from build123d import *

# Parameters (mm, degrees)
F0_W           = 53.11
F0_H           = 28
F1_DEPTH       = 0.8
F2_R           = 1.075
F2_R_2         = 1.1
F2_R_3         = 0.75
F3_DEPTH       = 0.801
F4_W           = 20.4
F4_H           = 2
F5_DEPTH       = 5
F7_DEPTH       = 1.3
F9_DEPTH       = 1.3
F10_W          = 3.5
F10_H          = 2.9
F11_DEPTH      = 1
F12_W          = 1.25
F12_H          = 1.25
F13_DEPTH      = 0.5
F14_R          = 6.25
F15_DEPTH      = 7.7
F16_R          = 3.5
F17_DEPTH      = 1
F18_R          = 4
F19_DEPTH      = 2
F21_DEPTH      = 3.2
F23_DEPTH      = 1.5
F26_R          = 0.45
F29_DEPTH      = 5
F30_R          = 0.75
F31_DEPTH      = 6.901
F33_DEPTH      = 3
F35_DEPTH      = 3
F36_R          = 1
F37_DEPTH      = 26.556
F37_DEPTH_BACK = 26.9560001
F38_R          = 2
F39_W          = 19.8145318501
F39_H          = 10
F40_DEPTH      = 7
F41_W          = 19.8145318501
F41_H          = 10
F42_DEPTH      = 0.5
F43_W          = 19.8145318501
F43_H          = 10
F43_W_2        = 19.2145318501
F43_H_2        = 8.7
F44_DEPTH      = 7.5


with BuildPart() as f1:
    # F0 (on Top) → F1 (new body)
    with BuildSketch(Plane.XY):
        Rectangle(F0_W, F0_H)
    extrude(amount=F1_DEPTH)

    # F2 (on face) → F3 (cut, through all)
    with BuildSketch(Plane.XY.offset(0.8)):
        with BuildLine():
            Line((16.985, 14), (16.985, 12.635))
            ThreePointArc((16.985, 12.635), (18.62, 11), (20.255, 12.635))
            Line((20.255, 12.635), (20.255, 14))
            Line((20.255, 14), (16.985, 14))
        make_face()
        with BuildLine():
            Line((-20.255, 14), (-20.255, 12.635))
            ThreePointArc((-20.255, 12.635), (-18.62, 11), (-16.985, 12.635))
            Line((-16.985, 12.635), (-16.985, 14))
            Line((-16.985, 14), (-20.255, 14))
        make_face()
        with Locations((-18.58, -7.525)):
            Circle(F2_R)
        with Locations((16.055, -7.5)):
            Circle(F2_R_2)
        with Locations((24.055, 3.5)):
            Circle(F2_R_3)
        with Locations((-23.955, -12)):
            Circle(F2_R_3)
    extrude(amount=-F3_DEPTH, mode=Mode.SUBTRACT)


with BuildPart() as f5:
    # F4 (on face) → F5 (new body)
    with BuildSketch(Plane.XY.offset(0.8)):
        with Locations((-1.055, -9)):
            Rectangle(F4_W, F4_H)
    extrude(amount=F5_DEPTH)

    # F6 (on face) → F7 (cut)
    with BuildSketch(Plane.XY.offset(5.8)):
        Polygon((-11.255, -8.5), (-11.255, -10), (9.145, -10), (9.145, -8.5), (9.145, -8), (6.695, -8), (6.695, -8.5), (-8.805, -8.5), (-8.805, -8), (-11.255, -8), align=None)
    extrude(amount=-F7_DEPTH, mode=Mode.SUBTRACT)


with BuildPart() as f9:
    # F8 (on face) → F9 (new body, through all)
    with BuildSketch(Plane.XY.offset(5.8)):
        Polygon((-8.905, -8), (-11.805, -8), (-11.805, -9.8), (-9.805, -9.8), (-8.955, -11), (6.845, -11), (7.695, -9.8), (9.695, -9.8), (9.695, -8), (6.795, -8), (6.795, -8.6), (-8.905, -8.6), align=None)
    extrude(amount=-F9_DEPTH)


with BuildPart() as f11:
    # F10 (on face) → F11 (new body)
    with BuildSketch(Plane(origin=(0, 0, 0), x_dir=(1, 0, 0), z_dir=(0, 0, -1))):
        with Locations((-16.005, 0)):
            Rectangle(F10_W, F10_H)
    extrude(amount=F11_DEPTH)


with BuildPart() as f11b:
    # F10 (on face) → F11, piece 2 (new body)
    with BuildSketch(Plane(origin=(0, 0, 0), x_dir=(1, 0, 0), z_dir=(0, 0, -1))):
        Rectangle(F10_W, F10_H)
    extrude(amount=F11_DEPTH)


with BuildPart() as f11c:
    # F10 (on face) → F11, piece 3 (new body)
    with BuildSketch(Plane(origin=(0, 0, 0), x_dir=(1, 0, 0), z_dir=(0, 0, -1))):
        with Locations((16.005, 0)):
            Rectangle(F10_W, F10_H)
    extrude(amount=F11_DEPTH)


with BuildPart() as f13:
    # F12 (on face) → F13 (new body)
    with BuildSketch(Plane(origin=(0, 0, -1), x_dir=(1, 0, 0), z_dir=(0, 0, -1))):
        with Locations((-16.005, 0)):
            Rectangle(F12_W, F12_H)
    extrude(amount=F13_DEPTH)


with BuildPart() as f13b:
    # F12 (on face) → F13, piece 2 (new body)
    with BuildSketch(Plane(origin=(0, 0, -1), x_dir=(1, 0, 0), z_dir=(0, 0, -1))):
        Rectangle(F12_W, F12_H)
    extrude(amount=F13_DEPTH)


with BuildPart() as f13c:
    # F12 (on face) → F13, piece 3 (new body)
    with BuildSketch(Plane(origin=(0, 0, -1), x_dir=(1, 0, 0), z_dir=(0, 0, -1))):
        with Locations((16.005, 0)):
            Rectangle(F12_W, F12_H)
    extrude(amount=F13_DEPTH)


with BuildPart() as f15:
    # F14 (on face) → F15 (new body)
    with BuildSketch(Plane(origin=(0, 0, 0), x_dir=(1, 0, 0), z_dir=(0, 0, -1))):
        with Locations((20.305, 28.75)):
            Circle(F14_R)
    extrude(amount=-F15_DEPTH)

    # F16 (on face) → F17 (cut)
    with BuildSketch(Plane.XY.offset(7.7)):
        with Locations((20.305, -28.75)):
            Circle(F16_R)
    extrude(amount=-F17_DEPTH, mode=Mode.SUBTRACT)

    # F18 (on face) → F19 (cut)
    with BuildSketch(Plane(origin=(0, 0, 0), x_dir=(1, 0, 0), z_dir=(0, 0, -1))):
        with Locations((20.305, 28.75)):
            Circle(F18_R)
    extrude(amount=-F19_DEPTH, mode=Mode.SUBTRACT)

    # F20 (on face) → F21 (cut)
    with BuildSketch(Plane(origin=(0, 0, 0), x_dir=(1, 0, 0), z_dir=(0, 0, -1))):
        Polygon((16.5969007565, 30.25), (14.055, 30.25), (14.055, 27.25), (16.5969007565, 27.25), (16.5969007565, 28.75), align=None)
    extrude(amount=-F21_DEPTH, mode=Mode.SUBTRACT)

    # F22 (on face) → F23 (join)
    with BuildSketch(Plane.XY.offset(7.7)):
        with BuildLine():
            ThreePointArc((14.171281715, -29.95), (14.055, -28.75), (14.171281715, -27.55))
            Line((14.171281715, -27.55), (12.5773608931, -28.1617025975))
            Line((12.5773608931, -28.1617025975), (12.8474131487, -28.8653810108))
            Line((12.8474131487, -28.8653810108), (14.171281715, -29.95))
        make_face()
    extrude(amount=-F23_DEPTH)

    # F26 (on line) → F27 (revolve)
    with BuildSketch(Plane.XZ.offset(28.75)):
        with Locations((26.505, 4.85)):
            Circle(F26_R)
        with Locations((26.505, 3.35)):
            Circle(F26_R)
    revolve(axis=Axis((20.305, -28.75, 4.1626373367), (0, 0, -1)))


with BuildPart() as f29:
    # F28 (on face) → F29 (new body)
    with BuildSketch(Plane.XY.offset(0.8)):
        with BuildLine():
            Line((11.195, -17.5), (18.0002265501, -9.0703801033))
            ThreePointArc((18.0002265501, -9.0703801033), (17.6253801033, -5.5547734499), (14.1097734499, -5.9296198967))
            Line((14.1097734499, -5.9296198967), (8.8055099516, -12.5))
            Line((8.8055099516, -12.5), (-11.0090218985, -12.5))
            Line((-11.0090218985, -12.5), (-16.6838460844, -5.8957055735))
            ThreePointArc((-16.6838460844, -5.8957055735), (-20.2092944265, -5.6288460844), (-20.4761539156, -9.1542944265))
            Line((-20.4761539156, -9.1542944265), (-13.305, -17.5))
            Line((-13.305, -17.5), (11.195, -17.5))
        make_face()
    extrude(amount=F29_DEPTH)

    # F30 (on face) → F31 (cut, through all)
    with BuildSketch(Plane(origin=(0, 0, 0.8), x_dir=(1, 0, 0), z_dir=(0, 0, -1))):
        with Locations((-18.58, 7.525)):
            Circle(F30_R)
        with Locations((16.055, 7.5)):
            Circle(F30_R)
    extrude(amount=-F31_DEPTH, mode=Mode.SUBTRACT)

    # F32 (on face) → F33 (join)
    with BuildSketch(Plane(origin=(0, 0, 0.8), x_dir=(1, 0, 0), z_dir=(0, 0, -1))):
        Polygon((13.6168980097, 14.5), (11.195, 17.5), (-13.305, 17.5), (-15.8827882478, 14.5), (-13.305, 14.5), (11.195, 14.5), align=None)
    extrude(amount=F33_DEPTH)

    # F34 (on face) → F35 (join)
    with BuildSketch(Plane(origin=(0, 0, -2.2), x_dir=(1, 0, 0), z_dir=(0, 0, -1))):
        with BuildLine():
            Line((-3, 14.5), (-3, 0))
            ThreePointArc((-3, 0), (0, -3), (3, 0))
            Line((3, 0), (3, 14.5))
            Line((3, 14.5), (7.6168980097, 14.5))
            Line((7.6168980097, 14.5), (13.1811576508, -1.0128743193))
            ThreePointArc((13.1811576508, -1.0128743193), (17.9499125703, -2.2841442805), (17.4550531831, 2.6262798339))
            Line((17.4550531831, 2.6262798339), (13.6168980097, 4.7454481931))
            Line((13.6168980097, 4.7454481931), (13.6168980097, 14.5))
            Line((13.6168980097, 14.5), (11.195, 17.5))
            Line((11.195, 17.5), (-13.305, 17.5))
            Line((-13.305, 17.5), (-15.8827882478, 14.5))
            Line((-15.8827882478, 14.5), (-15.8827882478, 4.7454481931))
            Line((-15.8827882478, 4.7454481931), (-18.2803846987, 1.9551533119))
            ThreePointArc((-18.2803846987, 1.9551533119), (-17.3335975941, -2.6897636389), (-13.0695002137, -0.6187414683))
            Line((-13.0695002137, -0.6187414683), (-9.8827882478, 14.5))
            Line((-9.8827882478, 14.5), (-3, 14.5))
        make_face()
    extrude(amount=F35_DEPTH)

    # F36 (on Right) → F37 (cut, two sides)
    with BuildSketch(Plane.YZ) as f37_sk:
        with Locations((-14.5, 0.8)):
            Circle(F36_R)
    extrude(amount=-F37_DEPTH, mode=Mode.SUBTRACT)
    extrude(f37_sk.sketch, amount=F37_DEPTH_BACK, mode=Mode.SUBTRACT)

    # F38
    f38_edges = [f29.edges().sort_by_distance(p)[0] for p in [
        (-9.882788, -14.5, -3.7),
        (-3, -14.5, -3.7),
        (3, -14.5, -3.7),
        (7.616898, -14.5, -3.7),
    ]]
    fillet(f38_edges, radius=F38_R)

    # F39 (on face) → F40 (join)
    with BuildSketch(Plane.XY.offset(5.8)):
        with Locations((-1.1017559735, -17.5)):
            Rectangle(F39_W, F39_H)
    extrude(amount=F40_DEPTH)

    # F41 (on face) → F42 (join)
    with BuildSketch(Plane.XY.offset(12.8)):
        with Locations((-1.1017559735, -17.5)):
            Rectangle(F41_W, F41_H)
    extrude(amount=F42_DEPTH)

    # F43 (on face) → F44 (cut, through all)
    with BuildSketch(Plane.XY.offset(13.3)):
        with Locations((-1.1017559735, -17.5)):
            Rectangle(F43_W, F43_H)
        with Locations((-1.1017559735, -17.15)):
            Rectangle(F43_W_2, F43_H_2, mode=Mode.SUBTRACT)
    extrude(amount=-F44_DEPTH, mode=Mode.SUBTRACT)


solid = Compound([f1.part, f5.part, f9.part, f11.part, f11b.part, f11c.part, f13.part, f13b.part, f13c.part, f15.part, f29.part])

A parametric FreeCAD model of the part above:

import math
import FreeCAD as App
import Part
import Sketcher
from FreeCAD import Vector
Q = App.Units.Quantity


def edges_at(feature, points):
    """Names of the edges that pass closest to the given points."""
    edges = feature.Shape.Edges
    near = lambda p: min(range(len(edges)), key=lambda i: edges[i].distToShape(Part.Vertex(*p))[0])
    return sorted({f"Edge{near(p) + 1}" for p in points})


def add_polygon(sketch, points):
    """Adds a closed chain of lines whose ends are joined by coincident constraints."""
    first, n = sketch.GeometryCount, len(points)
    for a, b in zip(points, points[1:] + points[:1]):
        sketch.addGeometry(Part.LineSegment(App.Vector(*a, 0), App.Vector(*b, 0)), False)
    for i in range(n):
        sketch.addConstraint(Sketcher.Constraint("Coincident", first + i, 2, first + (i + 1) % n, 1))

doc = App.newDocument("Part")
params = doc.addObject("Spreadsheet::Sheet", "Params")
for row, (alias, value) in enumerate([
    ("sketch1_height", "28 mm"),
    ("sketch1_width", "53.11 mm"),
    ("pad1_length", "0.8 mm"),
    ("sketch2_diameter", "2.2 mm"),
    ("sketch2_diameter2", "1.5 mm"),
    ("sketch2_diameter3", "2.15 mm"),
    ("sketch3_height", "2 mm"),
    ("sketch3_width", "20.4 mm"),
    ("pad2_length", "5 mm"),
    ("sketch4_height", "2 mm"),
    ("sketch4_width", "20.4 mm"),
    ("sketch4_width2", "15.5 mm"),
    ("sketch4_height2", "0.5 mm"),
    ("pocket2_length", "1.3 mm"),
    ("sketch5_width", "2 mm"),
    ("sketch5_width2", "2.9 mm"),
    ("sketch5_width3", "15.8 mm"),
    ("sketch5_width4", "15.7 mm"),
    ("sketch5_height", "1.8 mm"),
    ("pad3_length", "1.3 mm"),
    ("sketch6_width", "3.5 mm"),
    ("sketch6_height", "2.9 mm"),
    ("pad4_length", "1 mm"),
    ("sketch7_width", "3.5 mm"),
    ("sketch7_height", "2.9 mm"),
    ("pad5_length", "1 mm"),
    ("sketch8_width", "3.5 mm"),
    ("sketch8_height", "2.9 mm"),
    ("pad6_length", "1 mm"),
    ("sketch9_width", "1.25 mm"),
    ("pad7_length", "0.5 mm"),
    ("sketch10_width", "1.25 mm"),
    ("pad8_length", "0.5 mm"),
    ("sketch11_width", "1.25 mm"),
    ("pad9_length", "0.5 mm"),
    ("sketch12_diameter", "12.5 mm"),
    ("pad10_length", "7.7 mm"),
    ("sketch13_diameter", "7 mm"),
    ("pocket3_length", "1 mm"),
    ("sketch14_diameter", "8 mm"),
    ("pocket4_length", "2 mm"),
    ("sketch15_height", "3 mm"),
    ("pocket5_length", "3.2 mm"),
    ("sketch16_radius", "6.25 mm"),
    ("sketch16_height", "1.2 mm"),
    ("pad11_length", "1.5 mm"),
    ("sketch17_diameter", "0.9 mm"),
    ("sketch17_height", "1.5 mm"),
    ("revolution_angle", "360 deg"),
    ("sketch18_radius", "2.5 mm"),
    ("sketch18_width", "24.5 mm"),
    ("pad12_length", "5 mm"),
    ("sketch19_diameter", "1.5 mm"),
    ("sketch20_width", "24.5 mm"),
    ("pad13_length", "3 mm"),
    ("sketch21_radius", "3 mm"),
    ("sketch21_width", "24.5 mm"),
    ("sketch21_height", "14.5 mm"),
    ("pad14_length", "3 mm"),
    ("sketch22_diameter", "2 mm"),
    ("fillet_radius", "2 mm"),
    ("sketch23_height", "10 mm"),
    ("pad15_length", "7 mm"),
    ("sketch24_height", "10 mm"),
    ("pad16_length", "0.5 mm"),
    ("sketch25_height", "10 mm"),
    ("sketch25_height2", "8.7 mm"),
    ("pocket8_length", "7.5 mm"),
], start=1):
    params.set(f"A{row}", alias)
    params.set(f"B{row}", "=" + value)
    params.setAlias(f"B{row}", alias)

body = doc.addObject("PartDesign::Body", "Body")

# Sketch on XY plane
sketch1 = body.newObject("Sketcher::SketchObject", "Sketch")
sketch1.AttachmentSupport = (doc.getObject("XY_Plane"), [""])
sketch1.MapMode = "FlatFace"
add_polygon(sketch1, [(-27, 14), (-27, -14), (27, -14), (27, 14)])  # lines 0-3
sketch1.addConstraint([
    Sketcher.Constraint("Vertical", 0),
    Sketcher.Constraint("Horizontal", 1),
    Sketcher.Constraint("Vertical", 2),
    Sketcher.Constraint("Horizontal", 3),
    Sketcher.Constraint("Symmetric", 0, 2, 2, 2, -1, 1),
    Sketcher.Constraint("DistanceY", 0, 2, 0, 1, Q("28 mm")),
    Sketcher.Constraint("DistanceX", 1, 1, 1, 2, Q("53.11 mm")),
])
sketch1.setExpression("Constraints[9]", "Params.sketch1_height")
sketch1.setExpression("Constraints[10]", "Params.sketch1_width")
pad1 = body.newObject("PartDesign::Pad", "Pad")
pad1.Profile = sketch1
pad1.setExpression("Length", "Params.pad1_length")

# Sketch on XY plane
sketch2 = body.newObject("Sketcher::SketchObject", "Sketch001")
sketch2.AttachmentSupport = (doc.getObject("XY_Plane"), [""])
sketch2.MapMode = "FlatFace"
sketch2.AttachmentOffset = App.Placement(Vector(0, 0, 0.8), App.Rotation())
sketch2.addGeometry([
    Part.LineSegment(Vector(17, 14, 0), Vector(17, 12.6, 0)),  # 0
    Part.ArcOfCircle(Part.Circle(Vector(18.6, 12.6, 0), Vector(0, 0, 1), 1.6), math.radians(180), math.radians(360)),  # 1
    Part.LineSegment(Vector(20.3, 12.6, 0), Vector(20.3, 14, 0)),  # 2
    Part.LineSegment(Vector(20.3, 14, 0), Vector(17, 14, 0)),  # 3
    Part.LineSegment(Vector(-20.3, 14, 0), Vector(-20.3, 12.6, 0)),  # 4
    Part.ArcOfCircle(Part.Circle(Vector(-18.6, 12.6, 0), Vector(0, 0, 1), 1.6), math.radians(180), math.radians(360)),  # 5
    Part.LineSegment(Vector(-17, 12.6, 0), Vector(-17, 14, 0)),  # 6
    Part.LineSegment(Vector(-17, 14, 0), Vector(-20.3, 14, 0)),  # 7
    Part.Circle(Vector(-18.6, -7.5, 0), Vector(0, 0, 1), 1.1),  # 8
    Part.Circle(Vector(16.1, -7.5, 0), Vector(0, 0, 1), 1.1),  # 9
    Part.Circle(Vector(24.1, 3.5, 0), Vector(0, 0, 1), 0.8),  # 10
    Part.Circle(Vector(-24, -12, 0), Vector(0, 0, 1), 0.8),  # 11
], False)
sketch2.addConstraint([
    Sketcher.Constraint("Tangent", 0, 2, 1, 1),
    Sketcher.Constraint("Tangent", 1, 2, 2, 1),
    Sketcher.Constraint("Coincident", 2, 2, 3, 1),
    Sketcher.Constraint("Coincident", 3, 2, 0, 1),
    Sketcher.Constraint("Tangent", 4, 2, 5, 1),
    Sketcher.Constraint("Tangent", 5, 2, 6, 1),
    Sketcher.Constraint("Coincident", 6, 2, 7, 1),
    Sketcher.Constraint("Coincident", 7, 2, 4, 1),
    Sketcher.Constraint("Vertical", 0),
    Sketcher.Constraint("Vertical", 2),
    Sketcher.Constraint("Horizontal", 3),
    Sketcher.Constraint("Vertical", 4),
    Sketcher.Constraint("Vertical", 6),
    Sketcher.Constraint("Horizontal", 7),
    Sketcher.Constraint("Equal", 1, 5),
    Sketcher.Constraint("Equal", 10, 11),
    Sketcher.Constraint("Symmetric", 1, 3, 5, 3, -2),
    Sketcher.Constraint("Horizontal", 3, 2, 6, 2),
    Sketcher.Constraint("Diameter", 9, Q("2.2 mm")),
    Sketcher.Constraint("Diameter", 10, Q("1.5 mm")),
    Sketcher.Constraint("Diameter", 8, Q("2.15 mm")),
    Sketcher.Constraint("DistanceY", 11, 3, -1, 1, Q("12 mm")),
    Sketcher.Constraint("DistanceY", -1, 1, 2, 2, Q("14 mm")),
    Sketcher.Constraint("Radius", 1, Q("1.635 mm")),
    Sketcher.Constraint("DistanceX", 9, 3, 10, 3, Q("8 mm")),
    Sketcher.Constraint("DistanceY", 9, 3, 10, 3, Q("11 mm")),
    Sketcher.Constraint("DistanceY", 9, 3, -1, 1, Q("7.5 mm")),
    Sketcher.Constraint("DistanceX", 8, 3, 1, 3, Q("37.2 mm")),
    Sketcher.Constraint("DistanceX", 1, 2, 10, 3, Q("3.8 mm")),
    Sketcher.Constraint("DistanceX", 11, 3, 4, 2, Q("3.7 mm")),
    Sketcher.Constraint("DistanceY", 0, 2, 0, 1, Q("1.365 mm")),
    Sketcher.Constraint("DistanceX", -1, 1, 1, 3, Q("18.62 mm")),
    Sketcher.Constraint("DistanceY", 8, 3, 5, 3, Q("20.16 mm")),
])
sketch2.setExpression("Constraints[18]", "Params.sketch2_diameter")
sketch2.setExpression("Constraints[19]", "Params.sketch2_diameter2")
sketch2.setExpression("Constraints[20]", "Params.sketch2_diameter3")
pocket1 = body.newObject("PartDesign::Pocket", "Pocket")
pocket1.Profile = sketch2
pocket1.Type = "ThroughAll"
body2 = doc.addObject("PartDesign::Body", "Body001")

# Sketch on XY plane
sketch3 = body2.newObject("Sketcher::SketchObject", "Sketch002")
sketch3.AttachmentSupport = (doc.getObject("XY_Plane001"), [""])
sketch3.MapMode = "FlatFace"
sketch3.AttachmentOffset = App.Placement(Vector(0, 0, 0.8), App.Rotation())
add_polygon(sketch3, [(-11.3, -8), (-11.3, -10), (9.1, -10), (9.1, -8)])  # lines 0-3
sketch3.addConstraint([
    Sketcher.Constraint("Vertical", 0),
    Sketcher.Constraint("Horizontal", 1),
    Sketcher.Constraint("Vertical", 2),
    Sketcher.Constraint("Horizontal", 3),
    Sketcher.Constraint("DistanceY", 0, 2, 0, 1, Q("2 mm")),
    Sketcher.Constraint("DistanceX", 1, 1, 1, 2, Q("20.4 mm")),
    Sketcher.Constraint("DistanceY", 0, 2, -1, 1, Q("10 mm")),
    Sketcher.Constraint("DistanceX", 0, 2, -1, 1, Q("11.255 mm")),
])
sketch3.setExpression("Constraints[8]", "Params.sketch3_height")
sketch3.setExpression("Constraints[9]", "Params.sketch3_width")
pad2 = body2.newObject("PartDesign::Pad", "Pad001")
pad2.Profile = sketch3
pad2.setExpression("Length", "Params.pad2_length")

# Sketch on XY plane
sketch4 = body2.newObject("Sketcher::SketchObject", "Sketch003")
sketch4.AttachmentSupport = (doc.getObject("XY_Plane001"), [""])
sketch4.MapMode = "FlatFace"
sketch4.AttachmentOffset = App.Placement(Vector(0, 0, 5.8), App.Rotation())
add_polygon(sketch4, [(-11.3, -10), (9.1, -10), (9.1, -8), (6.7, -8), (6.7, -8.5), (-8.8, -8.5), (-8.8, -8), (-11.3, -8)])  # lines 0-7
sketch4.addConstraint([
    Sketcher.Constraint("Horizontal", 0),
    Sketcher.Constraint("Vertical", 1),
    Sketcher.Constraint("Horizontal", 2),
    Sketcher.Constraint("Vertical", 3),
    Sketcher.Constraint("Horizontal", 4),
    Sketcher.Constraint("Vertical", 5),
    Sketcher.Constraint("Horizontal", 6),
    Sketcher.Constraint("Vertical", 7),
    Sketcher.Constraint("Horizontal", 2, 2, 5, 2),
    Sketcher.Constraint("Equal", 2, 6),
    Sketcher.Constraint("DistanceY", 1, 1, 1, 2, Q("2 mm")),
    Sketcher.Constraint("DistanceX", 0, 1, 0, 2, Q("20.4 mm")),
    Sketcher.Constraint("DistanceX", 4, 2, 4, 1, Q("15.5 mm")),
    Sketcher.Constraint("DistanceY", 3, 2, 3, 1, Q("0.5 mm")),
    Sketcher.Constraint("DistanceY", 0, 2, -1, 1, Q("10 mm")),
    Sketcher.Constraint("DistanceX", -1, 1, 0, 2, Q("9.145 mm")),
])
sketch4.setExpression("Constraints[18]", "Params.sketch4_height")
sketch4.setExpression("Constraints[19]", "Params.sketch4_width")
sketch4.setExpression("Constraints[20]", "Params.sketch4_width2")
sketch4.setExpression("Constraints[21]", "Params.sketch4_height2")
pocket2 = body2.newObject("PartDesign::Pocket", "Pocket001")
pocket2.Profile = sketch4
pocket2.setExpression("Length", "Params.pocket2_length")
body3 = doc.addObject("PartDesign::Body", "Body002")

# Sketch on XY plane
sketch5 = body3.newObject("Sketcher::SketchObject", "Sketch004")
sketch5.AttachmentSupport = (doc.getObject("XY_Plane002"), [""])
sketch5.MapMode = "FlatFace"
sketch5.AttachmentOffset = App.Placement(Vector(0, 0, 5.8), App.Rotation())
add_polygon(sketch5, [(-8.9, -8), (-11.8, -8), (-11.8, -9.8), (-9.8, -9.8), (-9, -11), (6.8, -11), (7.7, -9.8), (9.7, -9.8), (9.7, -8), (6.8, -8), (6.8, -8.6), (-8.9, -8.6)])  # lines 0-11
sketch5.addConstraint([
    Sketcher.Constraint("Horizontal", 0),
    Sketcher.Constraint("Vertical", 1),
    Sketcher.Constraint("Horizontal", 2),
    Sketcher.Constraint("Horizontal", 4),
    Sketcher.Constraint("Horizontal", 6),
    Sketcher.Constraint("Vertical", 7),
    Sketcher.Constraint("Horizontal", 8),
    Sketcher.Constraint("Vertical", 9),
    Sketcher.Constraint("Horizontal", 10),
    Sketcher.Constraint("Vertical", 11),
    Sketcher.Constraint("Horizontal", 2, 2, 5, 2),
    Sketcher.Constraint("Horizontal", 0, 2, 7, 2),
    Sketcher.Constraint("Equal", 2, 6),
    Sketcher.Constraint("Equal", 0, 8),
    Sketcher.Constraint("Equal", 3, 5),
    Sketcher.Constraint("DistanceX", 2, 1, 2, 2, Q("2 mm")),
    Sketcher.Constraint("DistanceX", 0, 2, 0, 1, Q("2.9 mm")),
    Sketcher.Constraint("DistanceX", 4, 1, 4, 2, Q("15.8 mm")),
    Sketcher.Constraint("DistanceX", 10, 2, 10, 1, Q("15.7 mm")),
    Sketcher.Constraint("DistanceY", 1, 2, 1, 1, Q("1.8 mm")),
    Sketcher.Constraint("DistanceY", 9, 2, 9, 1, Q("0.6 mm")),
    Sketcher.Constraint("DistanceY", 0, 2, -1, 1, Q("8 mm")),
    Sketcher.Constraint("DistanceY", 3, 2, -1, 1, Q("11 mm")),
    Sketcher.Constraint("DistanceX", 0, 2, -1, 1, Q("11.805 mm")),
])
sketch5.setExpression("Constraints[27]", "Params.sketch5_width")
sketch5.setExpression("Constraints[28]", "Params.sketch5_width2")
sketch5.setExpression("Constraints[29]", "Params.sketch5_width3")
sketch5.setExpression("Constraints[30]", "Params.sketch5_width4")
sketch5.setExpression("Constraints[31]", "Params.sketch5_height")
pad3 = body3.newObject("PartDesign::Pad", "Pad002")
pad3.Profile = sketch5
pad3.setExpression("Length", "Params.pad3_length")
pad3.Reversed = True
body4 = doc.addObject("PartDesign::Body", "Body003")

# Sketch on XY plane
sketch6 = body4.newObject("Sketcher::SketchObject", "Sketch005")
sketch6.AttachmentSupport = (doc.getObject("XY_Plane003"), [""])
sketch6.MapMode = "FlatFace"
add_polygon(sketch6, [(-17.8, -1.4), (-17.8, 1.4), (-14.3, 1.4), (-14.3, -1.4)])  # lines 0-3
sketch6.addConstraint([
    Sketcher.Constraint("Vertical", 0),
    Sketcher.Constraint("Horizontal", 1),
    Sketcher.Constraint("Vertical", 2),
    Sketcher.Constraint("Horizontal", 3),
    Sketcher.Constraint("DistanceX", 1, 1, 1, 2, Q("3.5 mm")),
    Sketcher.Constraint("DistanceY", 0, 1, 0, 2, Q("2.9 mm")),
    Sketcher.Constraint("DistanceY", -1, 1, 0, 2, Q("1.45 mm")),
    Sketcher.Constraint("DistanceX", 0, 2, -1, 1, Q("17.755 mm")),
])
sketch6.setExpression("Constraints[8]", "Params.sketch6_width")
sketch6.setExpression("Constraints[9]", "Params.sketch6_height")
pad4 = body4.newObject("PartDesign::Pad", "Pad003")
pad4.Profile = sketch6
pad4.setExpression("Length", "Params.pad4_length")
pad4.Reversed = True
body5 = doc.addObject("PartDesign::Body", "Body004")

# Sketch on XY plane
sketch7 = body5.newObject("Sketcher::SketchObject", "Sketch006")
sketch7.AttachmentSupport = (doc.getObject("XY_Plane004"), [""])
sketch7.MapMode = "FlatFace"
add_polygon(sketch7, [(-1.8, -1.4), (-1.8, 1.4), (1.8, 1.4), (1.8, -1.4)])  # lines 0-3
sketch7.addConstraint([
    Sketcher.Constraint("Vertical", 0),
    Sketcher.Constraint("Horizontal", 1),
    Sketcher.Constraint("Vertical", 2),
    Sketcher.Constraint("Horizontal", 3),
    Sketcher.Constraint("Symmetric", 0, 2, 2, 2, -1, 1),
    Sketcher.Constraint("DistanceX", 1, 1, 1, 2, Q("3.5 mm")),
    Sketcher.Constraint("DistanceY", 0, 1, 0, 2, Q("2.9 mm")),
])
sketch7.setExpression("Constraints[9]", "Params.sketch7_width")
sketch7.setExpression("Constraints[10]", "Params.sketch7_height")
pad5 = body5.newObject("PartDesign::Pad", "Pad004")
pad5.Profile = sketch7
pad5.setExpression("Length", "Params.pad5_length")
pad5.Reversed = True
body6 = doc.addObject("PartDesign::Body", "Body005")

# Sketch on XY plane
sketch8 = body6.newObject("Sketcher::SketchObject", "Sketch007")
sketch8.AttachmentSupport = (doc.getObject("XY_Plane005"), [""])
sketch8.MapMode = "FlatFace"
add_polygon(sketch8, [(14.3, -1.4), (14.3, 1.4), (17.8, 1.4), (17.8, -1.4)])  # lines 0-3
sketch8.addConstraint([
    Sketcher.Constraint("Vertical", 0),
    Sketcher.Constraint("Horizontal", 1),
    Sketcher.Constraint("Vertical", 2),
    Sketcher.Constraint("Horizontal", 3),
    Sketcher.Constraint("DistanceX", 1, 1, 1, 2, Q("3.5 mm")),
    Sketcher.Constraint("DistanceY", 0, 1, 0, 2, Q("2.9 mm")),
    Sketcher.Constraint("DistanceY", -1, 1, 0, 2, Q("1.45 mm")),
    Sketcher.Constraint("DistanceX", -1, 1, 0, 2, Q("14.255 mm")),
])
sketch8.setExpression("Constraints[8]", "Params.sketch8_width")
sketch8.setExpression("Constraints[9]", "Params.sketch8_height")
pad6 = body6.newObject("PartDesign::Pad", "Pad005")
pad6.Profile = sketch8
pad6.setExpression("Length", "Params.pad6_length")
pad6.Reversed = True
body7 = doc.addObject("PartDesign::Body", "Body006")

# Sketch on XY plane
sketch9 = body7.newObject("Sketcher::SketchObject", "Sketch008")
sketch9.AttachmentSupport = (doc.getObject("XY_Plane006"), [""])
sketch9.MapMode = "FlatFace"
sketch9.AttachmentOffset = App.Placement(Vector(0, 0, -1), App.Rotation())
add_polygon(sketch9, [(-16.6, -0.6), (-16.6, 0.6), (-15.4, 0.6), (-15.4, -0.6)])  # lines 0-3
sketch9.addConstraint([
    Sketcher.Constraint("Vertical", 0),
    Sketcher.Constraint("Horizontal", 1),
    Sketcher.Constraint("Vertical", 2),
    Sketcher.Constraint("Horizontal", 3),
    Sketcher.Constraint("Equal", 3, 0),
    Sketcher.Constraint("DistanceX", 1, 1, 1, 2, Q("1.25 mm")),
    Sketcher.Constraint("DistanceX", 0, 2, -1, 1, Q("16.63 mm")),
    Sketcher.Constraint("DistanceY", -1, 1, 0, 2, Q("0.625 mm")),
])
sketch9.setExpression("Constraints[9]", "Params.sketch9_width")
pad7 = body7.newObject("PartDesign::Pad", "Pad006")
pad7.Profile = sketch9
pad7.setExpression("Length", "Params.pad7_length")
pad7.Reversed = True
body8 = doc.addObject("PartDesign::Body", "Body007")

# Sketch on XY plane
sketch10 = body8.newObject("Sketcher::SketchObject", "Sketch009")
sketch10.AttachmentSupport = (doc.getObject("XY_Plane007"), [""])
sketch10.MapMode = "FlatFace"
sketch10.AttachmentOffset = App.Placement(Vector(0, 0, -1), App.Rotation())
add_polygon(sketch10, [(-0.6, -0.6), (-0.6, 0.6), (0.6, 0.6), (0.6, -0.6)])  # lines 0-3
sketch10.addConstraint([
    Sketcher.Constraint("Vertical", 0),
    Sketcher.Constraint("Horizontal", 1),
    Sketcher.Constraint("Vertical", 2),
    Sketcher.Constraint("Horizontal", 3),
    Sketcher.Constraint("Symmetric", 0, 2, 2, 2, -1, 1),
    Sketcher.Constraint("Equal", 3, 0),
    Sketcher.Constraint("DistanceX", 1, 1, 1, 2, Q("1.25 mm")),
])
sketch10.setExpression("Constraints[10]", "Params.sketch10_width")
pad8 = body8.newObject("PartDesign::Pad", "Pad007")
pad8.Profile = sketch10
pad8.setExpression("Length", "Params.pad8_length")
pad8.Reversed = True
body9 = doc.addObject("PartDesign::Body", "Body008")

# Sketch on XY plane
sketch11 = body9.newObject("Sketcher::SketchObject", "Sketch010")
sketch11.AttachmentSupport = (doc.getObject("XY_Plane008"), [""])
sketch11.MapMode = "FlatFace"
sketch11.AttachmentOffset = App.Placement(Vector(0, 0, -1), App.Rotation())
add_polygon(sketch11, [(15.4, -0.6), (15.4, 0.6), (16.6, 0.6), (16.6, -0.6)])  # lines 0-3
sketch11.addConstraint([
    Sketcher.Constraint("Vertical", 0),
    Sketcher.Constraint("Horizontal", 1),
    Sketcher.Constraint("Vertical", 2),
    Sketcher.Constraint("Horizontal", 3),
    Sketcher.Constraint("Equal", 3, 0),
    Sketcher.Constraint("DistanceX", 1, 1, 1, 2, Q("1.25 mm")),
    Sketcher.Constraint("DistanceX", -1, 1, 0, 2, Q("15.38 mm")),
    Sketcher.Constraint("DistanceY", -1, 1, 0, 2, Q("0.625 mm")),
])
sketch11.setExpression("Constraints[9]", "Params.sketch11_width")
pad9 = body9.newObject("PartDesign::Pad", "Pad008")
pad9.Profile = sketch11
pad9.setExpression("Length", "Params.pad9_length")
pad9.Reversed = True
body10 = doc.addObject("PartDesign::Body", "Body009")

# Sketch on XY plane
sketch12 = body10.newObject("Sketcher::SketchObject", "Sketch011")
sketch12.AttachmentSupport = (doc.getObject("XY_Plane009"), [""])
sketch12.MapMode = "FlatFace"
sketch12.addGeometry(Part.Circle(Vector(20, -29, 0), Vector(0, 0, 1), 6), False)
sketch12.addConstraint([
    Sketcher.Constraint("Diameter", 0, Q("12.5 mm")),
    Sketcher.Constraint("DistanceY", 0, 3, -1, 1, Q("28.75 mm")),
    Sketcher.Constraint("DistanceX", -1, 1, 0, 3, Q("20.305 mm")),
])
sketch12.setExpression("Constraints[0]", "Params.sketch12_diameter")
pad10 = body10.newObject("PartDesign::Pad", "Pad009")
pad10.Profile = sketch12
pad10.setExpression("Length", "Params.pad10_length")

# Sketch on XY plane
sketch13 = body10.newObject("Sketcher::SketchObject", "Sketch012")
sketch13.AttachmentSupport = (doc.getObject("XY_Plane009"), [""])
sketch13.MapMode = "FlatFace"
sketch13.AttachmentOffset = App.Placement(Vector(0, 0, 7.7), App.Rotation())
sketch13.addGeometry(Part.Circle(Vector(20.3, -28.8, 0), Vector(0, 0, 1), 3.5), False)
sketch13.addConstraint([
    Sketcher.Constraint("Diameter", 0, Q("7 mm")),
    Sketcher.Constraint("DistanceY", 0, 3, -1, 1, Q("28.75 mm")),
    Sketcher.Constraint("DistanceX", -1, 1, 0, 3, Q("20.305 mm")),
])
sketch13.setExpression("Constraints[0]", "Params.sketch13_diameter")
pocket3 = body10.newObject("PartDesign::Pocket", "Pocket002")
pocket3.Profile = sketch13
pocket3.setExpression("Length", "Params.pocket3_length")

# Sketch on XY plane
sketch14 = body10.newObject("Sketcher::SketchObject", "Sketch013")
sketch14.AttachmentSupport = (doc.getObject("XY_Plane009"), [""])
sketch14.MapMode = "FlatFace"
sketch14.addGeometry(Part.Circle(Vector(20.3, -28.8, 0), Vector(0, 0, 1), 4), False)
sketch14.addConstraint([
    Sketcher.Constraint("Diameter", 0, Q("8 mm")),
    Sketcher.Constraint("DistanceY", 0, 3, -1, 1, Q("28.75 mm")),
    Sketcher.Constraint("DistanceX", -1, 1, 0, 3, Q("20.305 mm")),
])
sketch14.setExpression("Constraints[0]", "Params.sketch14_diameter")
pocket4 = body10.newObject("PartDesign::Pocket", "Pocket003")
pocket4.Profile = sketch14
pocket4.setExpression("Length", "Params.pocket4_length")
pocket4.Reversed = True

# Sketch on XY plane
sketch15 = body10.newObject("Sketcher::SketchObject", "Sketch014")
sketch15.AttachmentSupport = (doc.getObject("XY_Plane009"), [""])
sketch15.MapMode = "FlatFace"
add_polygon(sketch15, [(16.6, -30.2), (14.1, -30.2), (14.1, -27.2), (16.6, -27.2)])  # lines 0-3
sketch15.addConstraint([
    Sketcher.Constraint("Horizontal", 0),
    Sketcher.Constraint("Vertical", 1),
    Sketcher.Constraint("Horizontal", 2),
    Sketcher.Constraint("Vertical", 3),
    Sketcher.Constraint("DistanceY", 1, 1, 1, 2, Q("3 mm")),
    Sketcher.Constraint("DistanceY", 0, 2, -1, 1, Q("30.25 mm")),
    Sketcher.Constraint("DistanceX", 0, 2, 0, 1, Q("2.541901 mm")),
    Sketcher.Constraint("DistanceX", -1, 1, 0, 2, Q("14.055 mm")),
])
sketch15.setExpression("Constraints[8]", "Params.sketch15_height")
pocket5 = body10.newObject("PartDesign::Pocket", "Pocket004")
pocket5.Profile = sketch15
pocket5.setExpression("Length", "Params.pocket5_length")
pocket5.Reversed = True

# Sketch on XY plane
sketch16 = body10.newObject("Sketcher::SketchObject", "Sketch015")
sketch16.AttachmentSupport = (doc.getObject("XY_Plane009"), [""])
sketch16.MapMode = "FlatFace"
sketch16.AttachmentOffset = App.Placement(Vector(0, 0, 7.7), App.Rotation())
sketch16.addGeometry([
    Part.ArcOfCircle(Part.Circle(Vector(20.3, -28.8, 0), Vector(0, 0, 1), 6.2), math.radians(169), math.radians(191)),
    Part.LineSegment(Vector(14.2, -27.6, 0), Vector(12.6, -28.2, 0)),
    Part.LineSegment(Vector(12.6, -28.2, 0), Vector(12.8, -28.9, 0)),
    Part.LineSegment(Vector(12.8, -28.9, 0), Vector(14.2, -29.9, 0)),
], False)
sketch16.addConstraint([
    Sketcher.Constraint("Coincident", 0, 1, 1, 1),
    Sketcher.Constraint("Coincident", 1, 2, 2, 1),
    Sketcher.Constraint("Coincident", 2, 2, 3, 1),
    Sketcher.Constraint("Coincident", 3, 2, 0, 2),
    Sketcher.Constraint("Perpendicular", 1, 2),
    Sketcher.Constraint("Vertical", 0, 1, 3, 2),
    Sketcher.Constraint("Radius", 0, Q("6.25 mm")),
    Sketcher.Constraint("DistanceY", 0, 3, 0, 1, Q("1.2 mm")),
    Sketcher.Constraint("DistanceY", 0, 3, -1, 1, Q("28.75 mm")),
    Sketcher.Constraint("DistanceX", -1, 1, 0, 3, Q("20.305 mm")),
    Sketcher.Constraint("Distance", 2, Q("0.753718 mm")),
    Sketcher.Constraint("Distance", 3, Q("1.71144 mm")),
    Sketcher.Constraint("DistanceX", -1, 1, 1, 2, Q("12.577361 mm")),
])
sketch16.setExpression("Constraints[6]", "Params.sketch16_radius")
sketch16.setExpression("Constraints[7]", "Params.sketch16_height")
pad11 = body10.newObject("PartDesign::Pad", "Pad010")
pad11.Profile = sketch16
pad11.setExpression("Length", "Params.pad11_length")
pad11.Reversed = True

# Sketch on XZ plane
sketch17 = body10.newObject("Sketcher::SketchObject", "Sketch016")
sketch17.AttachmentSupport = (doc.getObject("XZ_Plane009"), [""])
sketch17.MapMode = "FlatFace"
sketch17.AttachmentOffset = App.Placement(Vector(0, 0, 28.75), App.Rotation())
sketch17.addGeometry([
    Part.Circle(Vector(26.5, 4.85, 0), Vector(0, 0, 1), 0.45),
    Part.Circle(Vector(26.5, 3.35, 0), Vector(0, 0, 1), 0.45),
], False)
sketch17.addGeometry(Part.LineSegment(Vector(20.3, 4.85, 0), Vector(20.3, 3.35, 0)), True)  # axis
sketch17.addConstraint([
    Sketcher.Constraint("Vertical", 2),
    Sketcher.Constraint("Equal", 0, 1),
    Sketcher.Constraint("Horizontal", 0, 3, 2, 1),
    Sketcher.Constraint("Horizontal", 1, 3, 2, 2),
    Sketcher.Constraint("Vertical", 0, 3, 1, 3),
    Sketcher.Constraint("Diameter", 0, Q("0.9 mm")),
    Sketcher.Constraint("DistanceY", 2, 2, 2, 1, Q("1.5 mm")),
    Sketcher.Constraint("DistanceX", 2, 1, 0, 3, Q("6.2 mm")),
    Sketcher.Constraint("DistanceY", -1, 1, 0, 3, Q("4.85 mm")),
    Sketcher.Constraint("DistanceX", -1, 1, 0, 3, Q("26.505 mm")),
])
sketch17.setExpression("Constraints[5]", "Params.sketch17_diameter")
sketch17.setExpression("Constraints[6]", "Params.sketch17_height")
revolution = body10.newObject("PartDesign::Revolution", "Revolution")
revolution.Profile = sketch17
revolution.ReferenceAxis = (sketch17, ["Axis0"])
revolution.setExpression("Angle", "Params.revolution_angle")
body11 = doc.addObject("PartDesign::Body", "Body010")

# Sketch on XY plane
sketch18 = body11.newObject("Sketcher::SketchObject", "Sketch017")
sketch18.AttachmentSupport = (doc.getObject("XY_Plane010"), [""])
sketch18.MapMode = "FlatFace"
sketch18.AttachmentOffset = App.Placement(Vector(0, 0, 0.8), App.Rotation())
sketch18.addGeometry([
    Part.LineSegment(Vector(11.2, -17.5, 0), Vector(18, -9.1, 0)),  # 0
    Part.ArcOfCircle(Part.Circle(Vector(16.1, -7.5, 0), Vector(0, 0, 1), 2.5), math.radians(-39), math.radians(141)),  # 1
    Part.LineSegment(Vector(14.1, -5.9, 0), Vector(8.8, -12.5, 0)),  # 2
    Part.LineSegment(Vector(8.8, -12.5, 0), Vector(-11, -12.5, 0)),  # 3
    Part.LineSegment(Vector(-11, -12.5, 0), Vector(-16.7, -5.9, 0)),  # 4
    Part.ArcOfCircle(Part.Circle(Vector(-18.6, -7.5, 0), Vector(0, 0, 1), 2.5), math.radians(41), math.radians(221)),  # 5
    Part.LineSegment(Vector(-20.5, -9.2, 0), Vector(-13.3, -17.5, 0)),  # 6
    Part.LineSegment(Vector(-13.3, -17.5, 0), Vector(11.2, -17.5, 0)),  # 7
], False)
sketch18.addConstraint([
    Sketcher.Constraint("Tangent", 0, 2, 1, 1),
    Sketcher.Constraint("Tangent", 1, 2, 2, 1),
    Sketcher.Constraint("Coincident", 2, 2, 3, 1),
    Sketcher.Constraint("Coincident", 3, 2, 4, 1),
    Sketcher.Constraint("Tangent", 4, 2, 5, 1),
    Sketcher.Constraint("Tangent", 5, 2, 6, 1),
    Sketcher.Constraint("Coincident", 6, 2, 7, 1),
    Sketcher.Constraint("Coincident", 7, 2, 0, 1),
    Sketcher.Constraint("Horizontal", 3),
    Sketcher.Constraint("Horizontal", 7),
    Sketcher.Constraint("Equal", 1, 5),
    Sketcher.Constraint("Parallel", 0, 2),
    Sketcher.Constraint("Parallel", 4, 6),
    Sketcher.Constraint("Radius", 1, Q("2.5 mm")),
    Sketcher.Constraint("DistanceX", 7, 1, 7, 2, Q("24.5 mm")),
    Sketcher.Constraint("DistanceY", 2, 2, 1, 3, Q("5 mm")),
    Sketcher.Constraint("DistanceY", 6, 2, 3, 2, Q("5 mm")),
    Sketcher.Constraint("DistanceY", 1, 3, -1, 1, Q("7.5 mm")),
    Sketcher.Constraint("DistanceX", 5, 3, -1, 1, Q("18.58 mm")),
    Sketcher.Constraint("DistanceX", 7, 2, 1, 3, Q("4.86 mm")),
    Sketcher.Constraint("DistanceX", -1, 1, 1, 3, Q("16.055 mm")),
    Sketcher.Constraint("DistanceY", 5, 3, -1, 1, Q("7.525 mm")),
])
sketch18.setExpression("Constraints[13]", "Params.sketch18_radius")
sketch18.setExpression("Constraints[14]", "Params.sketch18_width")
pad12 = body11.newObject("PartDesign::Pad", "Pad011")
pad12.Profile = sketch18
pad12.setExpression("Length", "Params.pad12_length")

# Sketch on XY plane
sketch19 = body11.newObject("Sketcher::SketchObject", "Sketch018")
sketch19.AttachmentSupport = (doc.getObject("XY_Plane010"), [""])
sketch19.MapMode = "FlatFace"
sketch19.AttachmentOffset = App.Placement(Vector(0, 0, 0.8), App.Rotation())
sketch19.addGeometry([
    Part.Circle(Vector(-18.6, -7.5, 0), Vector(0, 0, 1), 0.8),
    Part.Circle(Vector(16.1, -7.5, 0), Vector(0, 0, 1), 0.8),
], False)
sketch19.addConstraint([
    Sketcher.Constraint("Equal", 0, 1),
    Sketcher.Constraint("Diameter", 0, Q("1.5 mm")),
    Sketcher.Constraint("DistanceY", 1, 3, -1, 1, Q("7.5 mm")),
    Sketcher.Constraint("DistanceX", 0, 3, -1, 1, Q("18.58 mm")),
    Sketcher.Constraint("DistanceY", 0, 3, -1, 1, Q("7.525 mm")),
    Sketcher.Constraint("DistanceX", -1, 1, 1, 3, Q("16.055 mm")),
])
sketch19.setExpression("Constraints[1]", "Params.sketch19_diameter")
pocket6 = body11.newObject("PartDesign::Pocket", "Pocket005")
pocket6.Profile = sketch19
pocket6.Type = "ThroughAll"
pocket6.Reversed = True

# Sketch on XY plane
sketch20 = body11.newObject("Sketcher::SketchObject", "Sketch019")
sketch20.AttachmentSupport = (doc.getObject("XY_Plane010"), [""])
sketch20.MapMode = "FlatFace"
sketch20.AttachmentOffset = App.Placement(Vector(0, 0, 0.8), App.Rotation())
add_polygon(sketch20, [(13.6, -14.5), (11.2, -17.5), (-13.3, -17.5), (-15.9, -14.5)])  # lines 0-3
sketch20.addConstraint([
    Sketcher.Constraint("Horizontal", 1),
    Sketcher.Constraint("Horizontal", 3),
    Sketcher.Constraint("DistanceX", 1, 2, 1, 1, Q("24.5 mm")),
    Sketcher.Constraint("DistanceY", 1, 2, 2, 2, Q("3 mm")),
    Sketcher.Constraint("DistanceY", 0, 2, -1, 1, Q("17.5 mm")),
    Sketcher.Constraint("DistanceX", -1, 1, 0, 2, Q("11.195 mm")),
    Sketcher.Constraint("DistanceX", -1, 1, 3, 2, Q("13.616898 mm")),
    Sketcher.Constraint("DistanceX", 3, 1, 3, 2, Q("29.499686 mm")),
])
sketch20.setExpression("Constraints[6]", "Params.sketch20_width")
pad13 = body11.newObject("PartDesign::Pad", "Pad012")
pad13.Profile = sketch20
pad13.setExpression("Length", "Params.pad13_length")
pad13.Reversed = True

# Sketch on XY plane
sketch21 = body11.newObject("Sketcher::SketchObject", "Sketch020")
sketch21.AttachmentSupport = (doc.getObject("XY_Plane010"), [""])
sketch21.MapMode = "FlatFace"
sketch21.AttachmentOffset = App.Placement(Vector(0, 0, -2.2), App.Rotation())
sketch21.addGeometry([
    Part.LineSegment(Vector(-3, -14.5, 0), Vector(-3, 0, 0)),  # 0
    Part.ArcOfCircle(Part.Circle(Vector(0, 0, 0), Vector(0, 0, 1), 3), math.radians(0), math.radians(180)),  # 1
    Part.LineSegment(Vector(3, 0, 0), Vector(3, -14.5, 0)),  # 2
    Part.LineSegment(Vector(3, -14.5, 0), Vector(7.6, -14.5, 0)),  # 3
    Part.LineSegment(Vector(7.6, -14.5, 0), Vector(13.2, 1, 0)),  # 4
    Part.ArcOfCircle(Part.Circle(Vector(16, 0, 0), Vector(0, 0, 1), 3), math.radians(-61), math.radians(160)),  # 5
    Part.LineSegment(Vector(17.5, -2.6, 0), Vector(13.6, -4.7, 0)),  # 6
    Part.LineSegment(Vector(13.6, -4.7, 0), Vector(13.6, -14.5, 0)),  # 7
    Part.LineSegment(Vector(13.6, -14.5, 0), Vector(11.2, -17.5, 0)),  # 8
    Part.LineSegment(Vector(11.2, -17.5, 0), Vector(-13.3, -17.5, 0)),  # 9
    Part.LineSegment(Vector(-13.3, -17.5, 0), Vector(-15.9, -14.5, 0)),  # 10
    Part.LineSegment(Vector(-15.9, -14.5, 0), Vector(-15.9, -4.7, 0)),  # 11
    Part.LineSegment(Vector(-15.9, -4.7, 0), Vector(-18.3, -2, 0)),  # 12
    Part.ArcOfCircle(Part.Circle(Vector(-16, 0, 0), Vector(0, 0, 1), 3), math.radians(12), math.radians(221)),  # 13
    Part.LineSegment(Vector(-13.1, 0.6, 0), Vector(-9.9, -14.5, 0)),  # 14
    Part.LineSegment(Vector(-9.9, -14.5, 0), Vector(-3, -14.5, 0)),  # 15
], False)
sketch21.addConstraint([
    Sketcher.Constraint("Tangent", 0, 2, 1, 2),
    Sketcher.Constraint("Tangent", 1, 1, 2, 1),
    Sketcher.Constraint("Coincident", 2, 2, 3, 1),
    Sketcher.Constraint("Coincident", 3, 2, 4, 1),
    Sketcher.Constraint("Tangent", 4, 2, 5, 2),
    Sketcher.Constraint("Tangent", 5, 1, 6, 1),
    Sketcher.Constraint("Coincident", 6, 2, 7, 1),
    Sketcher.Constraint("Coincident", 7, 2, 8, 1),
    Sketcher.Constraint("Coincident", 8, 2, 9, 1),
    Sketcher.Constraint("Coincident", 9, 2, 10, 1),
    Sketcher.Constraint("Coincident", 10, 2, 11, 1),
    Sketcher.Constraint("Coincident", 11, 2, 12, 1),
    Sketcher.Constraint("Tangent", 12, 2, 13, 2),
    Sketcher.Constraint("Tangent", 13, 1, 14, 1),
    Sketcher.Constraint("Coincident", 14, 2, 15, 1),
    Sketcher.Constraint("Coincident", 15, 2, 0, 1),
    Sketcher.Constraint("Vertical", 0),
    Sketcher.Constraint("Vertical", 2),
    Sketcher.Constraint("Horizontal", 3),
    Sketcher.Constraint("Vertical", 7),
    Sketcher.Constraint("Horizontal", 9),
    Sketcher.Constraint("Vertical", 11),
    Sketcher.Constraint("Horizontal", 15),
    Sketcher.Constraint("Coincident", 1, 3, -1, 1),
    Sketcher.Constraint("Equal", 1, 5),
    Sketcher.Constraint("Equal", 5, 13),
    Sketcher.Constraint("Symmetric", 5, 3, 13, 3, -1, 1),
    Sketcher.Constraint("PointOnObject", 5, 3, -1),
    Sketcher.Constraint("Parallel", 10, 12),
    Sketcher.Constraint("Horizontal", 3, 2, 7, 2),
    Sketcher.Constraint("Horizontal", 7, 2, 10, 2),
    Sketcher.Constraint("Horizontal", 6, 2, 11, 2),
    Sketcher.Constraint("Horizontal", 10, 2, 14, 2),
    Sketcher.Constraint("Radius", 1, Q("3 mm")),
    Sketcher.Constraint("DistanceX", 9, 2, 9, 1, Q("24.5 mm")),
    Sketcher.Constraint("DistanceY", 0, 1, 0, 2, Q("14.5 mm")),
    Sketcher.Constraint("DistanceX", 3, 2, 6, 2, Q("6 mm")),
    Sketcher.Constraint("DistanceY", 8, 2, 7, 2, Q("3 mm")),
    Sketcher.Constraint("DistanceX", 10, 2, 14, 2, Q("6 mm")),
    Sketcher.Constraint("DistanceX", 13, 3, 9, 2, Q("2.7 mm")),
    Sketcher.Constraint("DistanceX", 13, 3, 5, 3, Q("32.01 mm")),
    Sketcher.Constraint("DistanceX", 3, 1, 3, 2, Q("4.616898 mm")),
    Sketcher.Constraint("DistanceX", 15, 1, 15, 2, Q("6.882788 mm")),
])
sketch21.setExpression("Constraints[33]", "Params.sketch21_radius")
sketch21.setExpression("Constraints[34]", "Params.sketch21_width")
sketch21.setExpression("Constraints[35]", "Params.sketch21_height")
pad14 = body11.newObject("PartDesign::Pad", "Pad013")
pad14.Profile = sketch21
pad14.setExpression("Length", "Params.pad14_length")
pad14.Reversed = True

# Sketch on YZ plane
sketch22 = body11.newObject("Sketcher::SketchObject", "Sketch021")
sketch22.AttachmentSupport = (doc.getObject("YZ_Plane010"), [""])
sketch22.MapMode = "FlatFace"
sketch22.addGeometry(Part.Circle(Vector(-14.5, 0.8, 0), Vector(0, 0, 1), 1), False)
sketch22.addConstraint([
    Sketcher.Constraint("Diameter", 0, Q("2 mm")),
    Sketcher.Constraint("DistanceX", 0, 3, -1, 1, Q("14.5 mm")),
    Sketcher.Constraint("DistanceY", -1, 1, 0, 3, Q("0.8 mm")),
])
sketch22.setExpression("Constraints[0]", "Params.sketch22_diameter")
pocket7 = body11.newObject("PartDesign::Pocket", "Pocket006")
pocket7.Profile = sketch22
pocket7.Type = "ThroughAll"
pocket7.Midplane = True
doc.recompute()

fillet = body11.newObject("PartDesign::Fillet", "Fillet")
fillet.Base = (pocket7, edges_at(pocket7, [
    (-9.883, -14.5, -3.7),
    (-3, -14.5, -3.7),
    (3, -14.5, -3.7),
    (7.617, -14.5, -3.7),
]))
fillet.setExpression("Radius", "Params.fillet_radius")

# Sketch on XY plane
sketch23 = body11.newObject("Sketcher::SketchObject", "Sketch022")
sketch23.AttachmentSupport = (doc.getObject("XY_Plane010"), [""])
sketch23.MapMode = "FlatFace"
sketch23.AttachmentOffset = App.Placement(Vector(0, 0, 5.8), App.Rotation())
add_polygon(sketch23, [(-11, -12), (-11, -22), (9, -22), (9, -12)])  # lines 0-3
sketch23.addConstraint([
    Sketcher.Constraint("Vertical", 0),
    Sketcher.Constraint("Horizontal", 1),
    Sketcher.Constraint("Vertical", 2),
    Sketcher.Constraint("Horizontal", 3),
    Sketcher.Constraint("DistanceY", 0, 2, 0, 1, Q("10 mm")),
    Sketcher.Constraint("DistanceY", 0, 2, -1, 1, Q("22.5 mm")),
    Sketcher.Constraint("DistanceX", 1, 1, 1, 2, Q("19.814532 mm")),
    Sketcher.Constraint("DistanceX", 0, 2, -1, 1, Q("11.009022 mm")),
])
sketch23.setExpression("Constraints[8]", "Params.sketch23_height")
pad15 = body11.newObject("PartDesign::Pad", "Pad014")
pad15.Profile = sketch23
pad15.setExpression("Length", "Params.pad15_length")

# Sketch on XY plane
sketch24 = body11.newObject("Sketcher::SketchObject", "Sketch023")
sketch24.AttachmentSupport = (doc.getObject("XY_Plane010"), [""])
sketch24.MapMode = "FlatFace"
sketch24.AttachmentOffset = App.Placement(Vector(0, 0, 12.8), App.Rotation())
add_polygon(sketch24, [(-11, -12), (-11, -22), (9, -22), (9, -12)])  # lines 0-3
sketch24.addConstraint([
    Sketcher.Constraint("Vertical", 0),
    Sketcher.Constraint("Horizontal", 1),
    Sketcher.Constraint("Vertical", 2),
    Sketcher.Constraint("Horizontal", 3),
    Sketcher.Constraint("DistanceY", 0, 2, 0, 1, Q("10 mm")),
    Sketcher.Constraint("DistanceY", 0, 2, -1, 1, Q("22.5 mm")),
    Sketcher.Constraint("DistanceX", 1, 1, 1, 2, Q("19.814532 mm")),
    Sketcher.Constraint("DistanceX", 0, 2, -1, 1, Q("11.009022 mm")),
])
sketch24.setExpression("Constraints[8]", "Params.sketch24_height")
pad16 = body11.newObject("PartDesign::Pad", "Pad015")
pad16.Profile = sketch24
pad16.setExpression("Length", "Params.pad16_length")

# Sketch on XY plane
sketch25 = body11.newObject("Sketcher::SketchObject", "Sketch024")
sketch25.AttachmentSupport = (doc.getObject("XY_Plane010"), [""])
sketch25.MapMode = "FlatFace"
sketch25.AttachmentOffset = App.Placement(Vector(0, 0, 13.3), App.Rotation())
add_polygon(sketch25, [(-11, -12), (-11, -22), (9, -22), (9, -12)])  # lines 0-3
add_polygon(sketch25, [(9, -22), (-11, -22), (-11, -13), (9, -13)])  # lines 4-7
sketch25.addConstraint([
    Sketcher.Constraint("Vertical", 0),
    Sketcher.Constraint("Horizontal", 1),
    Sketcher.Constraint("Vertical", 2),
    Sketcher.Constraint("Horizontal", 3),
    Sketcher.Constraint("Horizontal", 4),
    Sketcher.Constraint("Vertical", 5),
    Sketcher.Constraint("Horizontal", 6),
    Sketcher.Constraint("Vertical", 7),
    Sketcher.Constraint("DistanceY", 0, 2, 0, 1, Q("10 mm")),
    Sketcher.Constraint("DistanceY", 5, 1, 5, 2, Q("8.7 mm")),
    Sketcher.Constraint("DistanceY", 0, 2, 4, 2, Q("1 mm")),
    Sketcher.Constraint("DistanceY", 0, 2, -1, 1, Q("22.5 mm")),
    Sketcher.Constraint("DistanceX", 0, 2, 4, 2, Q("0.3 mm")),
    Sketcher.Constraint("DistanceX", 6, 2, 2, 2, Q("0.3 mm")),
    Sketcher.Constraint("DistanceX", 1, 1, 1, 2, Q("19.814532 mm")),
    Sketcher.Constraint("DistanceX", 0, 2, -1, 1, Q("11.009022 mm")),
])
sketch25.setExpression("Constraints[16]", "Params.sketch25_height")
sketch25.setExpression("Constraints[17]", "Params.sketch25_height2")
pocket8 = body11.newObject("PartDesign::Pocket", "Pocket007")
pocket8.Profile = sketch25
pocket8.setExpression("Length", "Params.pocket8_length")

doc.recompute()
